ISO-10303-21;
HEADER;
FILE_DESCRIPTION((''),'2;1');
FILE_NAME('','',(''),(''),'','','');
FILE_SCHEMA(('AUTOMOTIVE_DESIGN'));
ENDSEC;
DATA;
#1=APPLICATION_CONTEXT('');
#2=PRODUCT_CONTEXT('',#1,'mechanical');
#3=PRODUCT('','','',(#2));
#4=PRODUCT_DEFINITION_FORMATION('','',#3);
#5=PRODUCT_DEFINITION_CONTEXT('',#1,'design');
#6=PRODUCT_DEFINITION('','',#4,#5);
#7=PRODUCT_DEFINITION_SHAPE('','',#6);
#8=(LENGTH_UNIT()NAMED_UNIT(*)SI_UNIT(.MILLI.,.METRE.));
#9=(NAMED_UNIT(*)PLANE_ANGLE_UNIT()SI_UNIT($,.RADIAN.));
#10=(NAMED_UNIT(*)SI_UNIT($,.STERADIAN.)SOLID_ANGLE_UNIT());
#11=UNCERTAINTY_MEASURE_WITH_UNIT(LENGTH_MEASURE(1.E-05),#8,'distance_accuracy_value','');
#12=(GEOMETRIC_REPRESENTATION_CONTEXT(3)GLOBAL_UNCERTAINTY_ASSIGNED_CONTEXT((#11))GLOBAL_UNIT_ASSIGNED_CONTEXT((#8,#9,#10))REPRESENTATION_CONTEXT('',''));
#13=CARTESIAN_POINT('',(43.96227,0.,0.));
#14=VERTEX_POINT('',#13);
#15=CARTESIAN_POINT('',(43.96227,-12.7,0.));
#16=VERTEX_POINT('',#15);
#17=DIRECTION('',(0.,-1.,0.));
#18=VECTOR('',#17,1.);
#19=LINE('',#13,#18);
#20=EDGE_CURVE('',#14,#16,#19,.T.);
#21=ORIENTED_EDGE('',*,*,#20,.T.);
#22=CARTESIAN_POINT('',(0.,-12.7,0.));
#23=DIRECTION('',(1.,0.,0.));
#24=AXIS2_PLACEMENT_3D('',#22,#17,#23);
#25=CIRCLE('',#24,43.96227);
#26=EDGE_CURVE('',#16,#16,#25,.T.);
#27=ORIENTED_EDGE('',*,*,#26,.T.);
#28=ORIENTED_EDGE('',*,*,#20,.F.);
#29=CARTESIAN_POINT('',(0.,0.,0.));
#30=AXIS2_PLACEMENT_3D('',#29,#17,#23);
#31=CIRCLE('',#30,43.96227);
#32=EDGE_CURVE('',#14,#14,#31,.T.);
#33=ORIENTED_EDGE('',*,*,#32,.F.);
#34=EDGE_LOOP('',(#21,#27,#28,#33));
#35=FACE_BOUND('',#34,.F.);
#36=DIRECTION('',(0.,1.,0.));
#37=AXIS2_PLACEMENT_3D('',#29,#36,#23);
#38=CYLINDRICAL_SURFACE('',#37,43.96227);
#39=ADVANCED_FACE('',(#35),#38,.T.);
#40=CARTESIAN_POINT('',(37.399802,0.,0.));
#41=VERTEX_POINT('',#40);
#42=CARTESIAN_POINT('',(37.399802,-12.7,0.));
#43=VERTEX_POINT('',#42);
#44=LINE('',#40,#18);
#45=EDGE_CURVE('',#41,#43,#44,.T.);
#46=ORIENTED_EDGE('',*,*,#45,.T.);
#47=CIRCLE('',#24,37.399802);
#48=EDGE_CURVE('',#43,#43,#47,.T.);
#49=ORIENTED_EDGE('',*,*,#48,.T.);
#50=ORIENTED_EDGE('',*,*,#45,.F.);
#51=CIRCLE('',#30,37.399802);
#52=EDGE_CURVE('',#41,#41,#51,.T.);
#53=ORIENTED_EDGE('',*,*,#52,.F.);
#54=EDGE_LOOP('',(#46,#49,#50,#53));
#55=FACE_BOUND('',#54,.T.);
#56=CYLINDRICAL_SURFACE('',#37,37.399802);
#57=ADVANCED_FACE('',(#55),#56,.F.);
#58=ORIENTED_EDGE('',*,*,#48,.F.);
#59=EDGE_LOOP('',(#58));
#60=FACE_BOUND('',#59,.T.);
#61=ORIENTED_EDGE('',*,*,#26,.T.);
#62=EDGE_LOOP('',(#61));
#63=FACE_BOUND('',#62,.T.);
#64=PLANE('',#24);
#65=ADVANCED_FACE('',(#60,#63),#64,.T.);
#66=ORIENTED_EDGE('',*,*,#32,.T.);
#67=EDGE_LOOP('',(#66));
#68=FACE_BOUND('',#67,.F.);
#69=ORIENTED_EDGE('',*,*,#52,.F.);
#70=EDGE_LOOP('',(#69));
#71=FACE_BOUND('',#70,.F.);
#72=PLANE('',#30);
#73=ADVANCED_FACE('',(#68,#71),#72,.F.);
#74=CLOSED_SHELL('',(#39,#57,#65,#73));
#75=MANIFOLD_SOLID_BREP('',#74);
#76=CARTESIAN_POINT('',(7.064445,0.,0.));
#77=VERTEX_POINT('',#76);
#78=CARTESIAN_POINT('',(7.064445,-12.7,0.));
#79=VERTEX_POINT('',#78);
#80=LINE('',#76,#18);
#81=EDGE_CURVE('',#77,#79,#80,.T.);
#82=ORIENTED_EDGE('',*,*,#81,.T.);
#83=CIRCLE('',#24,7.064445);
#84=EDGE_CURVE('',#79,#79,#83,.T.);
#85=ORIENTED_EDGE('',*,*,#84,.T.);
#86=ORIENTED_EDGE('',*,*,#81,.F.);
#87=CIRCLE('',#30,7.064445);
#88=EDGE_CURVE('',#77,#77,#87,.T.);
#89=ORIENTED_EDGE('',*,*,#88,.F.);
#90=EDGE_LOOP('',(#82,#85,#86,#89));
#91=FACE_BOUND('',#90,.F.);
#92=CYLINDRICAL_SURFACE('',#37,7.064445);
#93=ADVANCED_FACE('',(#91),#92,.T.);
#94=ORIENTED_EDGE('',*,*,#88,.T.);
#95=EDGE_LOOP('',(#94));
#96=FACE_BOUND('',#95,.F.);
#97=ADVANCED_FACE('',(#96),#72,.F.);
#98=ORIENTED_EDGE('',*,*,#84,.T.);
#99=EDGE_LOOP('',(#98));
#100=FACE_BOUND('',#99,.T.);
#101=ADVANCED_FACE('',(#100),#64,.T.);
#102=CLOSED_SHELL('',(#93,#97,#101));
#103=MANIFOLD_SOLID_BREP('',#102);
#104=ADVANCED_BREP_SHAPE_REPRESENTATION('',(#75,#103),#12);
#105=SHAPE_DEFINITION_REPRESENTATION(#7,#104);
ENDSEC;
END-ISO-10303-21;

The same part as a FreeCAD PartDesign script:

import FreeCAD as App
import Part
import Sketcher
Q = App.Units.Quantity

doc = App.newDocument("Part")
body = doc.addObject("PartDesign::Body", "Body")

sketch1 = doc.addObject("Sketcher::SketchObject", "Sketch")
body.addObject(sketch1)
sketch1.AttachmentSupport = (doc.XZ_Plane, [""])
sketch1.MapMode = "FlatFace"
sketch1.addGeometry([
    Part.Circle(App.Vector(0, 0, 0), App.Vector(0, 0, 1), 44),
    Part.Circle(App.Vector(0, 0, 0), App.Vector(0, 0, 1), 37),
], False)
sketch1.addConstraint([
    Sketcher.Constraint("Coincident", 0, 3, -1, 1),
    Sketcher.Constraint("Coincident", 1, 3, -1, 1),
    Sketcher.Constraint("Diameter", 0, 87.92454),
    Sketcher.Constraint("Diameter", 1, 74.799604),
])
pad1 = doc.addObject("PartDesign::Pad", "Pad")
body.addObject(pad1)
pad1.Profile = sketch1
pad1.Length = Q("0.5 in")
body2 = doc.addObject("PartDesign::Body", "Body001")

sketch2 = doc.addObject("Sketcher::SketchObject", "Sketch001")
body2.addObject(sketch2)
sketch2.AttachmentSupport = (doc.getObject("XZ_Plane001"), [""])
sketch2.MapMode = "FlatFace"
sketch2.addGeometry(Part.Circle(App.Vector(0, 0, 0), App.Vector(0, 0, 1), 7), False)
sketch2.addConstraint([
    Sketcher.Constraint("Coincident", 0, 3, -1, 1),
    Sketcher.Constraint("Diameter", 0, 14.12889),
])
pad2 = doc.addObject("PartDesign::Pad", "Pad001")
body2.addObject(pad2)
pad2.Profile = sketch2
pad2.Length = Q("0.5 in")

doc.recompute()
